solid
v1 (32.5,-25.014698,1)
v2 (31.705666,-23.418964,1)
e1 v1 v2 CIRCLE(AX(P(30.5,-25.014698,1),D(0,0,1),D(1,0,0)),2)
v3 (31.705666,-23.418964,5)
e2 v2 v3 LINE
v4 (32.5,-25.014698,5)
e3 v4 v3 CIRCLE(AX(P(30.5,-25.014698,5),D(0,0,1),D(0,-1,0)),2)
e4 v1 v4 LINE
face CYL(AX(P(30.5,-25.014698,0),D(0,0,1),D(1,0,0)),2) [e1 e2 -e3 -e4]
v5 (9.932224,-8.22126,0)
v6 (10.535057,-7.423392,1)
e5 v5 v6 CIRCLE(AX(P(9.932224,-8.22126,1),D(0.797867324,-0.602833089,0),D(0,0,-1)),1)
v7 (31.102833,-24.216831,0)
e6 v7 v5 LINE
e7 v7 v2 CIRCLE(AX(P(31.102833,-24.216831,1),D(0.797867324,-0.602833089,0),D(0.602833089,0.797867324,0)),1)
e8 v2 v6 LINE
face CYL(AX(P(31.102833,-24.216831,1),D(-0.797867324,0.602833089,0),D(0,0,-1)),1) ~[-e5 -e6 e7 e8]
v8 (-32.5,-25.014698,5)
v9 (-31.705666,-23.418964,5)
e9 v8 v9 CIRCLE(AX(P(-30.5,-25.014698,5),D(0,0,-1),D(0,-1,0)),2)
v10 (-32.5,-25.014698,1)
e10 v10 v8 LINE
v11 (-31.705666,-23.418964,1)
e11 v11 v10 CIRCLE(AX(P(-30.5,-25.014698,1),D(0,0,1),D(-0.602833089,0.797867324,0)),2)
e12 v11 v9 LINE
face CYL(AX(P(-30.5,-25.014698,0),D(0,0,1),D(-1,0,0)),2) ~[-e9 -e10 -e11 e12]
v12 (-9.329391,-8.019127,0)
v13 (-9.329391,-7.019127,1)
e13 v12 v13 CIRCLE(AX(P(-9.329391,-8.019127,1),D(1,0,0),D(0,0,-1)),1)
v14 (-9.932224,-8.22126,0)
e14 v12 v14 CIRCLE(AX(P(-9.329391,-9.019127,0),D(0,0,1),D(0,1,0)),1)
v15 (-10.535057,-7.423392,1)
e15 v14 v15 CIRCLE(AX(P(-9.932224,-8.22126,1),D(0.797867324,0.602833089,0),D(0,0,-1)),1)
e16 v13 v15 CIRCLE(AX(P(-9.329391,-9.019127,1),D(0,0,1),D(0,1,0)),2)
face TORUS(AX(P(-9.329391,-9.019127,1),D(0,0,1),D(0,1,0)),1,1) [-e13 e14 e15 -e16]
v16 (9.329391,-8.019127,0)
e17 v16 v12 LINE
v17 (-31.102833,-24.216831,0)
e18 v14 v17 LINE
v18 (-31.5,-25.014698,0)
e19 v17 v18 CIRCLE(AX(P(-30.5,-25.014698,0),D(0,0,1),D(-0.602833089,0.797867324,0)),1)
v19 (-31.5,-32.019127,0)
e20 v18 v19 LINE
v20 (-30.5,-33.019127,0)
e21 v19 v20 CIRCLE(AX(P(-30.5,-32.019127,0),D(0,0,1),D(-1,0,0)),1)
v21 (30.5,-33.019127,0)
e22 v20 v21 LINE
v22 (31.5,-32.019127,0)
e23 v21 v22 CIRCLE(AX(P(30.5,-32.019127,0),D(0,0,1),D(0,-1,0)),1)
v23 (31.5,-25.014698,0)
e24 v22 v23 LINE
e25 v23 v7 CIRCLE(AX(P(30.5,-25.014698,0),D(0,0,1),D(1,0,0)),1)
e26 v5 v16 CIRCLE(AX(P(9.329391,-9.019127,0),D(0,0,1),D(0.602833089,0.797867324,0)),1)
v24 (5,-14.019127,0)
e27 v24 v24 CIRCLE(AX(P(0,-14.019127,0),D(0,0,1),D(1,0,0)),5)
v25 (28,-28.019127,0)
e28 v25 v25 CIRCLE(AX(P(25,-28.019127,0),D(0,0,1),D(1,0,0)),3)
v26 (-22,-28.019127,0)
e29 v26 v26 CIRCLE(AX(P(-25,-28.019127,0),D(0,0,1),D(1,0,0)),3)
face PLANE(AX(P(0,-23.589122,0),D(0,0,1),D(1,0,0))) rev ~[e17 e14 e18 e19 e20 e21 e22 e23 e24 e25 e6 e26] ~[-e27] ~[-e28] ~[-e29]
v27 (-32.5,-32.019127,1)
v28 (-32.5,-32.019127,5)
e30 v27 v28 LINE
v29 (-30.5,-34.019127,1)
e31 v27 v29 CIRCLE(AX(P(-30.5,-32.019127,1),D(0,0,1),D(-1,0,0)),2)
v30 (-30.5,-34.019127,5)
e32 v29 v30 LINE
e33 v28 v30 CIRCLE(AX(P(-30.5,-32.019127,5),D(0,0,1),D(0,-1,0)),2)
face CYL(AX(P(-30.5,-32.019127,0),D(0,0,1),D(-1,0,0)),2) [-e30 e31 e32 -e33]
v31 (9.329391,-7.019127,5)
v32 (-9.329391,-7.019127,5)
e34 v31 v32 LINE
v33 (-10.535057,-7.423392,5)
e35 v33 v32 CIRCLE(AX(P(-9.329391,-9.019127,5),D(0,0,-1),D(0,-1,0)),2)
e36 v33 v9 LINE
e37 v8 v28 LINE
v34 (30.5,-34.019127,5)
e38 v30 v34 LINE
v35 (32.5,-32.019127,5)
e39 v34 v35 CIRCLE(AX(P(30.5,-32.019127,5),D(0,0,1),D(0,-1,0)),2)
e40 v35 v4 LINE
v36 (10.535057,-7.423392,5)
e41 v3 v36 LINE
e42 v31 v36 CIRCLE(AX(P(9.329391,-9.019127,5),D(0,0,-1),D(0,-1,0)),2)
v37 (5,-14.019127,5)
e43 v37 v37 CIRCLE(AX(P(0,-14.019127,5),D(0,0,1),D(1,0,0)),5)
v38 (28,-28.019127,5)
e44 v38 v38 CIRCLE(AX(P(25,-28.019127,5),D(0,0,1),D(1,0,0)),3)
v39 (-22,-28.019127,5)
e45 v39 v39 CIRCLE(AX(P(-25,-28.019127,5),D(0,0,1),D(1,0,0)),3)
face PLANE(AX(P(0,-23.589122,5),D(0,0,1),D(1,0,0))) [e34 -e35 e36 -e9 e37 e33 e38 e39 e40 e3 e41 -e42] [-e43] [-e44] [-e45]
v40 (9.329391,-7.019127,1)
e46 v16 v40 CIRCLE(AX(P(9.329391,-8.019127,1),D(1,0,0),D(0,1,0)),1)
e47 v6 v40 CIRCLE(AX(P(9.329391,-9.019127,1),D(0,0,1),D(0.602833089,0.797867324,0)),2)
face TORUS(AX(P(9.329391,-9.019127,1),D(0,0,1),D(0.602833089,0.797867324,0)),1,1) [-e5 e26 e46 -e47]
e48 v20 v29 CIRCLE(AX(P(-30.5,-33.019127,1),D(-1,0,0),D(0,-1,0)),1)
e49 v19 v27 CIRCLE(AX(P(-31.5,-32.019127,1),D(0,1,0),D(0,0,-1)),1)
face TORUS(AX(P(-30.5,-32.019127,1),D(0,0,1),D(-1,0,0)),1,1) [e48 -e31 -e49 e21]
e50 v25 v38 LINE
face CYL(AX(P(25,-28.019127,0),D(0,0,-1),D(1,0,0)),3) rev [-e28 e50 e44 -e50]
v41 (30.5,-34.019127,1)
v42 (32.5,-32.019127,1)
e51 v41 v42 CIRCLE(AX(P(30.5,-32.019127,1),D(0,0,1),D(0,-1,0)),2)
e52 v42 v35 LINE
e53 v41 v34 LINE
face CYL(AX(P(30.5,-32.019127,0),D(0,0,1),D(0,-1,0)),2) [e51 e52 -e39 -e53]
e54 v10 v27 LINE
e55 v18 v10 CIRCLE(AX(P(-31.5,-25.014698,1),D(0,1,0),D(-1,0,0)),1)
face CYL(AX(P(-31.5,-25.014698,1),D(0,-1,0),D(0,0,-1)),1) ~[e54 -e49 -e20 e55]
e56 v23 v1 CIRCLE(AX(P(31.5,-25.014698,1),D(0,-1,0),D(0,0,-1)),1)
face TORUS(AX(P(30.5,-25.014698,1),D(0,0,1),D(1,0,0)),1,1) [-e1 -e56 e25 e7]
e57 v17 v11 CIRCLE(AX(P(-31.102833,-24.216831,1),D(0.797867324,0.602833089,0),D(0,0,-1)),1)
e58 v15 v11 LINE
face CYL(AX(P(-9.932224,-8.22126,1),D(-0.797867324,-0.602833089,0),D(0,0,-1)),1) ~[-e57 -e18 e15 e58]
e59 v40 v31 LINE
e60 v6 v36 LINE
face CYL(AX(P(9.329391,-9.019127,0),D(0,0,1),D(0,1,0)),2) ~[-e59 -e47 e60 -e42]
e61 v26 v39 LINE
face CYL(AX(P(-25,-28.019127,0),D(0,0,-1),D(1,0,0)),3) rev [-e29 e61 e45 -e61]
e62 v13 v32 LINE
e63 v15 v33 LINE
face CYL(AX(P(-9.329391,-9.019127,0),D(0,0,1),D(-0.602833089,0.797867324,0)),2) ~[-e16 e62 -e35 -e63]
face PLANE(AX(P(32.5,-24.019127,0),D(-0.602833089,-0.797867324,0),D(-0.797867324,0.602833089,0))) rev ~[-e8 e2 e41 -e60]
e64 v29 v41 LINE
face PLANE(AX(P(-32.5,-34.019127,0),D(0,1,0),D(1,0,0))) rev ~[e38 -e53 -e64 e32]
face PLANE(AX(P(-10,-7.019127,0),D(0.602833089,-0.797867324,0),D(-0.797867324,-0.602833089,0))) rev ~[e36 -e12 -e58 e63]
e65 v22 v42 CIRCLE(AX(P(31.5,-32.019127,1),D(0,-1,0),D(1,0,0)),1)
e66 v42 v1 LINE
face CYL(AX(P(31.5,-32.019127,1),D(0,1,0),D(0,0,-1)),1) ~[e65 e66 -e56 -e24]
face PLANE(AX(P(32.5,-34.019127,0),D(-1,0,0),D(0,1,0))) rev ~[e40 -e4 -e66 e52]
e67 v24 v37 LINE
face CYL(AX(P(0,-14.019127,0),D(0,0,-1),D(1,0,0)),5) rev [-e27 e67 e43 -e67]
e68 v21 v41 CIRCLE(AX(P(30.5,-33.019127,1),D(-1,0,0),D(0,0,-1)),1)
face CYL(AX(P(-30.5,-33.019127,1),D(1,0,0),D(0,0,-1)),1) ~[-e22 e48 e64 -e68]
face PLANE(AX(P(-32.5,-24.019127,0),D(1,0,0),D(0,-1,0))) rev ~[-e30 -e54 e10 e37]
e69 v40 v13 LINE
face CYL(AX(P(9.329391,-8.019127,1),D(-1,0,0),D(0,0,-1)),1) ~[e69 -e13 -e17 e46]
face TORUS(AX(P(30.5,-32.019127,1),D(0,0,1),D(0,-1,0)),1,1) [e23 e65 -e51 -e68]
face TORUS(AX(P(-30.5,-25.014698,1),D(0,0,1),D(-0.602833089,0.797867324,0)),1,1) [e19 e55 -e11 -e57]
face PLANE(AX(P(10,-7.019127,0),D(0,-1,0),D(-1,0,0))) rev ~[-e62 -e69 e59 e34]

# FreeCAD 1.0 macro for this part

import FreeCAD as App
import Part
import Sketcher


def edges_at(feature, points):
    """Names of the edges that pass closest to the given points."""
    edges = feature.Shape.Edges
    near = lambda p: min(range(len(edges)), key=lambda i: edges[i].distToShape(Part.Vertex(*p))[0])
    return sorted({f"Edge{near(p) + 1}" for p in points})


def add_polygon(sketch, points):
    """Adds a closed chain of lines whose ends are joined by coincident constraints."""
    first, n = sketch.GeometryCount, len(points)
    for a, b in zip(points, points[1:] + points[:1]):
        sketch.addGeometry(Part.LineSegment(App.Vector(*a, 0), App.Vector(*b, 0)), False)
    for i in range(n):
        sketch.addConstraint(Sketcher.Constraint("Coincident", first + i, 2, first + (i + 1) % n, 1))

doc = App.newDocument("Part")
body = doc.addObject("PartDesign::Body", "Body")

# Sketch on XY plane
sketch1 = doc.addObject("Sketcher::SketchObject", "Sketch")
body.addObject(sketch1)
sketch1.AttachmentSupport = (doc.XY_Plane, [""])
sketch1.MapMode = "FlatFace"
add_polygon(sketch1, [(-32.5, -24.019127), (-32.5, -34.019127), (32.5, -34.019127), (32.5, -24.019127), (10, -7.019127), (-10, -7.019127)])  # lines 0-5
sketch1.addGeometry(Part.Circle(App.Vector(-25, -28.019127, 0), App.Vector(0, 0, 1), 3), False)  # 6
sketch1.addGeometry(Part.Circle(App.Vector(25, -28.019127, 0), App.Vector(0, 0, 1), 3), False)  # 7
sketch1.addGeometry(Part.Circle(App.Vector(0, -14.019127, 0), App.Vector(0, 0, 1), 5), False)  # 8
sketch1.addConstraint([
    Sketcher.Constraint("Vertical", 0),
    Sketcher.Constraint("Horizontal", 1),
    Sketcher.Constraint("Vertical", 2),
    Sketcher.Constraint("Horizontal", 4),
    Sketcher.Constraint("Equal", 6, 7),
    Sketcher.Constraint("Symmetric", 6, 3, 7, 3, -2),
    Sketcher.Constraint("Symmetric", 2, 2, 5, 2, -2),
    Sketcher.Constraint("PointOnObject", 8, 3, -2),
    Sketcher.Constraint("Equal", 3, 5),
    Sketcher.Constraint("Diameter", 6, 6.0),
    Sketcher.Constraint("Diameter", 8, 10.0),
    Sketcher.Constraint("DistanceX", 1, 1, 1, 2, 65.0),
    Sketcher.Constraint("DistanceX", 4, 2, 4, 1, 20.0),
    Sketcher.Constraint("DistanceY", 0, 2, 0, 1, 10.0),
    Sketcher.Constraint("DistanceX", 6, 3, -1, 1, 25.0),
    Sketcher.Constraint("DistanceY", 6, 3, 8, 3, 14.0),
    Sketcher.Constraint("DistanceY", 0, 2, 6, 3, 6.0),
    Sketcher.Constraint("DistanceY", 8, 3, 3, 2, 7.0),
    Sketcher.Constraint("DistanceY", 6, 3, -1, 1, 28.019127),
])
pad1 = doc.addObject("PartDesign::Pad", "Pad")
body.addObject(pad1)
pad1.Profile = sketch1
pad1.Length = 5
doc.recompute()

fillet = doc.addObject("PartDesign::Fillet", "Fillet")
body.addObject(fillet)
fillet.Base = (pad1, edges_at(pad1, [
    (-10, -7.019, 2.5),
    (-32.5, -24.019, 2.5),
    (10, -7.019, 2.5),
    (32.5, -24.019, 2.5),
    (-32.5, -34.019, 2.5),
    (32.5, -34.019, 2.5),
]))
fillet.Radius = 2
doc.recompute()

fillet2 = doc.addObject("PartDesign::Fillet", "Fillet001")
body.addObject(fillet2)
fillet2.Base = (fillet, edges_at(fillet, [
    (-21.12, -15.421, 0),
    (-32.5, -28.517, 0),
    (0, -34.019, 0),
    (32.5, -28.517, 0),
    (21.12, -15.421, 0),
    (0, -7.019, 0),
]))
fillet2.Radius = 1

doc.recompute()
